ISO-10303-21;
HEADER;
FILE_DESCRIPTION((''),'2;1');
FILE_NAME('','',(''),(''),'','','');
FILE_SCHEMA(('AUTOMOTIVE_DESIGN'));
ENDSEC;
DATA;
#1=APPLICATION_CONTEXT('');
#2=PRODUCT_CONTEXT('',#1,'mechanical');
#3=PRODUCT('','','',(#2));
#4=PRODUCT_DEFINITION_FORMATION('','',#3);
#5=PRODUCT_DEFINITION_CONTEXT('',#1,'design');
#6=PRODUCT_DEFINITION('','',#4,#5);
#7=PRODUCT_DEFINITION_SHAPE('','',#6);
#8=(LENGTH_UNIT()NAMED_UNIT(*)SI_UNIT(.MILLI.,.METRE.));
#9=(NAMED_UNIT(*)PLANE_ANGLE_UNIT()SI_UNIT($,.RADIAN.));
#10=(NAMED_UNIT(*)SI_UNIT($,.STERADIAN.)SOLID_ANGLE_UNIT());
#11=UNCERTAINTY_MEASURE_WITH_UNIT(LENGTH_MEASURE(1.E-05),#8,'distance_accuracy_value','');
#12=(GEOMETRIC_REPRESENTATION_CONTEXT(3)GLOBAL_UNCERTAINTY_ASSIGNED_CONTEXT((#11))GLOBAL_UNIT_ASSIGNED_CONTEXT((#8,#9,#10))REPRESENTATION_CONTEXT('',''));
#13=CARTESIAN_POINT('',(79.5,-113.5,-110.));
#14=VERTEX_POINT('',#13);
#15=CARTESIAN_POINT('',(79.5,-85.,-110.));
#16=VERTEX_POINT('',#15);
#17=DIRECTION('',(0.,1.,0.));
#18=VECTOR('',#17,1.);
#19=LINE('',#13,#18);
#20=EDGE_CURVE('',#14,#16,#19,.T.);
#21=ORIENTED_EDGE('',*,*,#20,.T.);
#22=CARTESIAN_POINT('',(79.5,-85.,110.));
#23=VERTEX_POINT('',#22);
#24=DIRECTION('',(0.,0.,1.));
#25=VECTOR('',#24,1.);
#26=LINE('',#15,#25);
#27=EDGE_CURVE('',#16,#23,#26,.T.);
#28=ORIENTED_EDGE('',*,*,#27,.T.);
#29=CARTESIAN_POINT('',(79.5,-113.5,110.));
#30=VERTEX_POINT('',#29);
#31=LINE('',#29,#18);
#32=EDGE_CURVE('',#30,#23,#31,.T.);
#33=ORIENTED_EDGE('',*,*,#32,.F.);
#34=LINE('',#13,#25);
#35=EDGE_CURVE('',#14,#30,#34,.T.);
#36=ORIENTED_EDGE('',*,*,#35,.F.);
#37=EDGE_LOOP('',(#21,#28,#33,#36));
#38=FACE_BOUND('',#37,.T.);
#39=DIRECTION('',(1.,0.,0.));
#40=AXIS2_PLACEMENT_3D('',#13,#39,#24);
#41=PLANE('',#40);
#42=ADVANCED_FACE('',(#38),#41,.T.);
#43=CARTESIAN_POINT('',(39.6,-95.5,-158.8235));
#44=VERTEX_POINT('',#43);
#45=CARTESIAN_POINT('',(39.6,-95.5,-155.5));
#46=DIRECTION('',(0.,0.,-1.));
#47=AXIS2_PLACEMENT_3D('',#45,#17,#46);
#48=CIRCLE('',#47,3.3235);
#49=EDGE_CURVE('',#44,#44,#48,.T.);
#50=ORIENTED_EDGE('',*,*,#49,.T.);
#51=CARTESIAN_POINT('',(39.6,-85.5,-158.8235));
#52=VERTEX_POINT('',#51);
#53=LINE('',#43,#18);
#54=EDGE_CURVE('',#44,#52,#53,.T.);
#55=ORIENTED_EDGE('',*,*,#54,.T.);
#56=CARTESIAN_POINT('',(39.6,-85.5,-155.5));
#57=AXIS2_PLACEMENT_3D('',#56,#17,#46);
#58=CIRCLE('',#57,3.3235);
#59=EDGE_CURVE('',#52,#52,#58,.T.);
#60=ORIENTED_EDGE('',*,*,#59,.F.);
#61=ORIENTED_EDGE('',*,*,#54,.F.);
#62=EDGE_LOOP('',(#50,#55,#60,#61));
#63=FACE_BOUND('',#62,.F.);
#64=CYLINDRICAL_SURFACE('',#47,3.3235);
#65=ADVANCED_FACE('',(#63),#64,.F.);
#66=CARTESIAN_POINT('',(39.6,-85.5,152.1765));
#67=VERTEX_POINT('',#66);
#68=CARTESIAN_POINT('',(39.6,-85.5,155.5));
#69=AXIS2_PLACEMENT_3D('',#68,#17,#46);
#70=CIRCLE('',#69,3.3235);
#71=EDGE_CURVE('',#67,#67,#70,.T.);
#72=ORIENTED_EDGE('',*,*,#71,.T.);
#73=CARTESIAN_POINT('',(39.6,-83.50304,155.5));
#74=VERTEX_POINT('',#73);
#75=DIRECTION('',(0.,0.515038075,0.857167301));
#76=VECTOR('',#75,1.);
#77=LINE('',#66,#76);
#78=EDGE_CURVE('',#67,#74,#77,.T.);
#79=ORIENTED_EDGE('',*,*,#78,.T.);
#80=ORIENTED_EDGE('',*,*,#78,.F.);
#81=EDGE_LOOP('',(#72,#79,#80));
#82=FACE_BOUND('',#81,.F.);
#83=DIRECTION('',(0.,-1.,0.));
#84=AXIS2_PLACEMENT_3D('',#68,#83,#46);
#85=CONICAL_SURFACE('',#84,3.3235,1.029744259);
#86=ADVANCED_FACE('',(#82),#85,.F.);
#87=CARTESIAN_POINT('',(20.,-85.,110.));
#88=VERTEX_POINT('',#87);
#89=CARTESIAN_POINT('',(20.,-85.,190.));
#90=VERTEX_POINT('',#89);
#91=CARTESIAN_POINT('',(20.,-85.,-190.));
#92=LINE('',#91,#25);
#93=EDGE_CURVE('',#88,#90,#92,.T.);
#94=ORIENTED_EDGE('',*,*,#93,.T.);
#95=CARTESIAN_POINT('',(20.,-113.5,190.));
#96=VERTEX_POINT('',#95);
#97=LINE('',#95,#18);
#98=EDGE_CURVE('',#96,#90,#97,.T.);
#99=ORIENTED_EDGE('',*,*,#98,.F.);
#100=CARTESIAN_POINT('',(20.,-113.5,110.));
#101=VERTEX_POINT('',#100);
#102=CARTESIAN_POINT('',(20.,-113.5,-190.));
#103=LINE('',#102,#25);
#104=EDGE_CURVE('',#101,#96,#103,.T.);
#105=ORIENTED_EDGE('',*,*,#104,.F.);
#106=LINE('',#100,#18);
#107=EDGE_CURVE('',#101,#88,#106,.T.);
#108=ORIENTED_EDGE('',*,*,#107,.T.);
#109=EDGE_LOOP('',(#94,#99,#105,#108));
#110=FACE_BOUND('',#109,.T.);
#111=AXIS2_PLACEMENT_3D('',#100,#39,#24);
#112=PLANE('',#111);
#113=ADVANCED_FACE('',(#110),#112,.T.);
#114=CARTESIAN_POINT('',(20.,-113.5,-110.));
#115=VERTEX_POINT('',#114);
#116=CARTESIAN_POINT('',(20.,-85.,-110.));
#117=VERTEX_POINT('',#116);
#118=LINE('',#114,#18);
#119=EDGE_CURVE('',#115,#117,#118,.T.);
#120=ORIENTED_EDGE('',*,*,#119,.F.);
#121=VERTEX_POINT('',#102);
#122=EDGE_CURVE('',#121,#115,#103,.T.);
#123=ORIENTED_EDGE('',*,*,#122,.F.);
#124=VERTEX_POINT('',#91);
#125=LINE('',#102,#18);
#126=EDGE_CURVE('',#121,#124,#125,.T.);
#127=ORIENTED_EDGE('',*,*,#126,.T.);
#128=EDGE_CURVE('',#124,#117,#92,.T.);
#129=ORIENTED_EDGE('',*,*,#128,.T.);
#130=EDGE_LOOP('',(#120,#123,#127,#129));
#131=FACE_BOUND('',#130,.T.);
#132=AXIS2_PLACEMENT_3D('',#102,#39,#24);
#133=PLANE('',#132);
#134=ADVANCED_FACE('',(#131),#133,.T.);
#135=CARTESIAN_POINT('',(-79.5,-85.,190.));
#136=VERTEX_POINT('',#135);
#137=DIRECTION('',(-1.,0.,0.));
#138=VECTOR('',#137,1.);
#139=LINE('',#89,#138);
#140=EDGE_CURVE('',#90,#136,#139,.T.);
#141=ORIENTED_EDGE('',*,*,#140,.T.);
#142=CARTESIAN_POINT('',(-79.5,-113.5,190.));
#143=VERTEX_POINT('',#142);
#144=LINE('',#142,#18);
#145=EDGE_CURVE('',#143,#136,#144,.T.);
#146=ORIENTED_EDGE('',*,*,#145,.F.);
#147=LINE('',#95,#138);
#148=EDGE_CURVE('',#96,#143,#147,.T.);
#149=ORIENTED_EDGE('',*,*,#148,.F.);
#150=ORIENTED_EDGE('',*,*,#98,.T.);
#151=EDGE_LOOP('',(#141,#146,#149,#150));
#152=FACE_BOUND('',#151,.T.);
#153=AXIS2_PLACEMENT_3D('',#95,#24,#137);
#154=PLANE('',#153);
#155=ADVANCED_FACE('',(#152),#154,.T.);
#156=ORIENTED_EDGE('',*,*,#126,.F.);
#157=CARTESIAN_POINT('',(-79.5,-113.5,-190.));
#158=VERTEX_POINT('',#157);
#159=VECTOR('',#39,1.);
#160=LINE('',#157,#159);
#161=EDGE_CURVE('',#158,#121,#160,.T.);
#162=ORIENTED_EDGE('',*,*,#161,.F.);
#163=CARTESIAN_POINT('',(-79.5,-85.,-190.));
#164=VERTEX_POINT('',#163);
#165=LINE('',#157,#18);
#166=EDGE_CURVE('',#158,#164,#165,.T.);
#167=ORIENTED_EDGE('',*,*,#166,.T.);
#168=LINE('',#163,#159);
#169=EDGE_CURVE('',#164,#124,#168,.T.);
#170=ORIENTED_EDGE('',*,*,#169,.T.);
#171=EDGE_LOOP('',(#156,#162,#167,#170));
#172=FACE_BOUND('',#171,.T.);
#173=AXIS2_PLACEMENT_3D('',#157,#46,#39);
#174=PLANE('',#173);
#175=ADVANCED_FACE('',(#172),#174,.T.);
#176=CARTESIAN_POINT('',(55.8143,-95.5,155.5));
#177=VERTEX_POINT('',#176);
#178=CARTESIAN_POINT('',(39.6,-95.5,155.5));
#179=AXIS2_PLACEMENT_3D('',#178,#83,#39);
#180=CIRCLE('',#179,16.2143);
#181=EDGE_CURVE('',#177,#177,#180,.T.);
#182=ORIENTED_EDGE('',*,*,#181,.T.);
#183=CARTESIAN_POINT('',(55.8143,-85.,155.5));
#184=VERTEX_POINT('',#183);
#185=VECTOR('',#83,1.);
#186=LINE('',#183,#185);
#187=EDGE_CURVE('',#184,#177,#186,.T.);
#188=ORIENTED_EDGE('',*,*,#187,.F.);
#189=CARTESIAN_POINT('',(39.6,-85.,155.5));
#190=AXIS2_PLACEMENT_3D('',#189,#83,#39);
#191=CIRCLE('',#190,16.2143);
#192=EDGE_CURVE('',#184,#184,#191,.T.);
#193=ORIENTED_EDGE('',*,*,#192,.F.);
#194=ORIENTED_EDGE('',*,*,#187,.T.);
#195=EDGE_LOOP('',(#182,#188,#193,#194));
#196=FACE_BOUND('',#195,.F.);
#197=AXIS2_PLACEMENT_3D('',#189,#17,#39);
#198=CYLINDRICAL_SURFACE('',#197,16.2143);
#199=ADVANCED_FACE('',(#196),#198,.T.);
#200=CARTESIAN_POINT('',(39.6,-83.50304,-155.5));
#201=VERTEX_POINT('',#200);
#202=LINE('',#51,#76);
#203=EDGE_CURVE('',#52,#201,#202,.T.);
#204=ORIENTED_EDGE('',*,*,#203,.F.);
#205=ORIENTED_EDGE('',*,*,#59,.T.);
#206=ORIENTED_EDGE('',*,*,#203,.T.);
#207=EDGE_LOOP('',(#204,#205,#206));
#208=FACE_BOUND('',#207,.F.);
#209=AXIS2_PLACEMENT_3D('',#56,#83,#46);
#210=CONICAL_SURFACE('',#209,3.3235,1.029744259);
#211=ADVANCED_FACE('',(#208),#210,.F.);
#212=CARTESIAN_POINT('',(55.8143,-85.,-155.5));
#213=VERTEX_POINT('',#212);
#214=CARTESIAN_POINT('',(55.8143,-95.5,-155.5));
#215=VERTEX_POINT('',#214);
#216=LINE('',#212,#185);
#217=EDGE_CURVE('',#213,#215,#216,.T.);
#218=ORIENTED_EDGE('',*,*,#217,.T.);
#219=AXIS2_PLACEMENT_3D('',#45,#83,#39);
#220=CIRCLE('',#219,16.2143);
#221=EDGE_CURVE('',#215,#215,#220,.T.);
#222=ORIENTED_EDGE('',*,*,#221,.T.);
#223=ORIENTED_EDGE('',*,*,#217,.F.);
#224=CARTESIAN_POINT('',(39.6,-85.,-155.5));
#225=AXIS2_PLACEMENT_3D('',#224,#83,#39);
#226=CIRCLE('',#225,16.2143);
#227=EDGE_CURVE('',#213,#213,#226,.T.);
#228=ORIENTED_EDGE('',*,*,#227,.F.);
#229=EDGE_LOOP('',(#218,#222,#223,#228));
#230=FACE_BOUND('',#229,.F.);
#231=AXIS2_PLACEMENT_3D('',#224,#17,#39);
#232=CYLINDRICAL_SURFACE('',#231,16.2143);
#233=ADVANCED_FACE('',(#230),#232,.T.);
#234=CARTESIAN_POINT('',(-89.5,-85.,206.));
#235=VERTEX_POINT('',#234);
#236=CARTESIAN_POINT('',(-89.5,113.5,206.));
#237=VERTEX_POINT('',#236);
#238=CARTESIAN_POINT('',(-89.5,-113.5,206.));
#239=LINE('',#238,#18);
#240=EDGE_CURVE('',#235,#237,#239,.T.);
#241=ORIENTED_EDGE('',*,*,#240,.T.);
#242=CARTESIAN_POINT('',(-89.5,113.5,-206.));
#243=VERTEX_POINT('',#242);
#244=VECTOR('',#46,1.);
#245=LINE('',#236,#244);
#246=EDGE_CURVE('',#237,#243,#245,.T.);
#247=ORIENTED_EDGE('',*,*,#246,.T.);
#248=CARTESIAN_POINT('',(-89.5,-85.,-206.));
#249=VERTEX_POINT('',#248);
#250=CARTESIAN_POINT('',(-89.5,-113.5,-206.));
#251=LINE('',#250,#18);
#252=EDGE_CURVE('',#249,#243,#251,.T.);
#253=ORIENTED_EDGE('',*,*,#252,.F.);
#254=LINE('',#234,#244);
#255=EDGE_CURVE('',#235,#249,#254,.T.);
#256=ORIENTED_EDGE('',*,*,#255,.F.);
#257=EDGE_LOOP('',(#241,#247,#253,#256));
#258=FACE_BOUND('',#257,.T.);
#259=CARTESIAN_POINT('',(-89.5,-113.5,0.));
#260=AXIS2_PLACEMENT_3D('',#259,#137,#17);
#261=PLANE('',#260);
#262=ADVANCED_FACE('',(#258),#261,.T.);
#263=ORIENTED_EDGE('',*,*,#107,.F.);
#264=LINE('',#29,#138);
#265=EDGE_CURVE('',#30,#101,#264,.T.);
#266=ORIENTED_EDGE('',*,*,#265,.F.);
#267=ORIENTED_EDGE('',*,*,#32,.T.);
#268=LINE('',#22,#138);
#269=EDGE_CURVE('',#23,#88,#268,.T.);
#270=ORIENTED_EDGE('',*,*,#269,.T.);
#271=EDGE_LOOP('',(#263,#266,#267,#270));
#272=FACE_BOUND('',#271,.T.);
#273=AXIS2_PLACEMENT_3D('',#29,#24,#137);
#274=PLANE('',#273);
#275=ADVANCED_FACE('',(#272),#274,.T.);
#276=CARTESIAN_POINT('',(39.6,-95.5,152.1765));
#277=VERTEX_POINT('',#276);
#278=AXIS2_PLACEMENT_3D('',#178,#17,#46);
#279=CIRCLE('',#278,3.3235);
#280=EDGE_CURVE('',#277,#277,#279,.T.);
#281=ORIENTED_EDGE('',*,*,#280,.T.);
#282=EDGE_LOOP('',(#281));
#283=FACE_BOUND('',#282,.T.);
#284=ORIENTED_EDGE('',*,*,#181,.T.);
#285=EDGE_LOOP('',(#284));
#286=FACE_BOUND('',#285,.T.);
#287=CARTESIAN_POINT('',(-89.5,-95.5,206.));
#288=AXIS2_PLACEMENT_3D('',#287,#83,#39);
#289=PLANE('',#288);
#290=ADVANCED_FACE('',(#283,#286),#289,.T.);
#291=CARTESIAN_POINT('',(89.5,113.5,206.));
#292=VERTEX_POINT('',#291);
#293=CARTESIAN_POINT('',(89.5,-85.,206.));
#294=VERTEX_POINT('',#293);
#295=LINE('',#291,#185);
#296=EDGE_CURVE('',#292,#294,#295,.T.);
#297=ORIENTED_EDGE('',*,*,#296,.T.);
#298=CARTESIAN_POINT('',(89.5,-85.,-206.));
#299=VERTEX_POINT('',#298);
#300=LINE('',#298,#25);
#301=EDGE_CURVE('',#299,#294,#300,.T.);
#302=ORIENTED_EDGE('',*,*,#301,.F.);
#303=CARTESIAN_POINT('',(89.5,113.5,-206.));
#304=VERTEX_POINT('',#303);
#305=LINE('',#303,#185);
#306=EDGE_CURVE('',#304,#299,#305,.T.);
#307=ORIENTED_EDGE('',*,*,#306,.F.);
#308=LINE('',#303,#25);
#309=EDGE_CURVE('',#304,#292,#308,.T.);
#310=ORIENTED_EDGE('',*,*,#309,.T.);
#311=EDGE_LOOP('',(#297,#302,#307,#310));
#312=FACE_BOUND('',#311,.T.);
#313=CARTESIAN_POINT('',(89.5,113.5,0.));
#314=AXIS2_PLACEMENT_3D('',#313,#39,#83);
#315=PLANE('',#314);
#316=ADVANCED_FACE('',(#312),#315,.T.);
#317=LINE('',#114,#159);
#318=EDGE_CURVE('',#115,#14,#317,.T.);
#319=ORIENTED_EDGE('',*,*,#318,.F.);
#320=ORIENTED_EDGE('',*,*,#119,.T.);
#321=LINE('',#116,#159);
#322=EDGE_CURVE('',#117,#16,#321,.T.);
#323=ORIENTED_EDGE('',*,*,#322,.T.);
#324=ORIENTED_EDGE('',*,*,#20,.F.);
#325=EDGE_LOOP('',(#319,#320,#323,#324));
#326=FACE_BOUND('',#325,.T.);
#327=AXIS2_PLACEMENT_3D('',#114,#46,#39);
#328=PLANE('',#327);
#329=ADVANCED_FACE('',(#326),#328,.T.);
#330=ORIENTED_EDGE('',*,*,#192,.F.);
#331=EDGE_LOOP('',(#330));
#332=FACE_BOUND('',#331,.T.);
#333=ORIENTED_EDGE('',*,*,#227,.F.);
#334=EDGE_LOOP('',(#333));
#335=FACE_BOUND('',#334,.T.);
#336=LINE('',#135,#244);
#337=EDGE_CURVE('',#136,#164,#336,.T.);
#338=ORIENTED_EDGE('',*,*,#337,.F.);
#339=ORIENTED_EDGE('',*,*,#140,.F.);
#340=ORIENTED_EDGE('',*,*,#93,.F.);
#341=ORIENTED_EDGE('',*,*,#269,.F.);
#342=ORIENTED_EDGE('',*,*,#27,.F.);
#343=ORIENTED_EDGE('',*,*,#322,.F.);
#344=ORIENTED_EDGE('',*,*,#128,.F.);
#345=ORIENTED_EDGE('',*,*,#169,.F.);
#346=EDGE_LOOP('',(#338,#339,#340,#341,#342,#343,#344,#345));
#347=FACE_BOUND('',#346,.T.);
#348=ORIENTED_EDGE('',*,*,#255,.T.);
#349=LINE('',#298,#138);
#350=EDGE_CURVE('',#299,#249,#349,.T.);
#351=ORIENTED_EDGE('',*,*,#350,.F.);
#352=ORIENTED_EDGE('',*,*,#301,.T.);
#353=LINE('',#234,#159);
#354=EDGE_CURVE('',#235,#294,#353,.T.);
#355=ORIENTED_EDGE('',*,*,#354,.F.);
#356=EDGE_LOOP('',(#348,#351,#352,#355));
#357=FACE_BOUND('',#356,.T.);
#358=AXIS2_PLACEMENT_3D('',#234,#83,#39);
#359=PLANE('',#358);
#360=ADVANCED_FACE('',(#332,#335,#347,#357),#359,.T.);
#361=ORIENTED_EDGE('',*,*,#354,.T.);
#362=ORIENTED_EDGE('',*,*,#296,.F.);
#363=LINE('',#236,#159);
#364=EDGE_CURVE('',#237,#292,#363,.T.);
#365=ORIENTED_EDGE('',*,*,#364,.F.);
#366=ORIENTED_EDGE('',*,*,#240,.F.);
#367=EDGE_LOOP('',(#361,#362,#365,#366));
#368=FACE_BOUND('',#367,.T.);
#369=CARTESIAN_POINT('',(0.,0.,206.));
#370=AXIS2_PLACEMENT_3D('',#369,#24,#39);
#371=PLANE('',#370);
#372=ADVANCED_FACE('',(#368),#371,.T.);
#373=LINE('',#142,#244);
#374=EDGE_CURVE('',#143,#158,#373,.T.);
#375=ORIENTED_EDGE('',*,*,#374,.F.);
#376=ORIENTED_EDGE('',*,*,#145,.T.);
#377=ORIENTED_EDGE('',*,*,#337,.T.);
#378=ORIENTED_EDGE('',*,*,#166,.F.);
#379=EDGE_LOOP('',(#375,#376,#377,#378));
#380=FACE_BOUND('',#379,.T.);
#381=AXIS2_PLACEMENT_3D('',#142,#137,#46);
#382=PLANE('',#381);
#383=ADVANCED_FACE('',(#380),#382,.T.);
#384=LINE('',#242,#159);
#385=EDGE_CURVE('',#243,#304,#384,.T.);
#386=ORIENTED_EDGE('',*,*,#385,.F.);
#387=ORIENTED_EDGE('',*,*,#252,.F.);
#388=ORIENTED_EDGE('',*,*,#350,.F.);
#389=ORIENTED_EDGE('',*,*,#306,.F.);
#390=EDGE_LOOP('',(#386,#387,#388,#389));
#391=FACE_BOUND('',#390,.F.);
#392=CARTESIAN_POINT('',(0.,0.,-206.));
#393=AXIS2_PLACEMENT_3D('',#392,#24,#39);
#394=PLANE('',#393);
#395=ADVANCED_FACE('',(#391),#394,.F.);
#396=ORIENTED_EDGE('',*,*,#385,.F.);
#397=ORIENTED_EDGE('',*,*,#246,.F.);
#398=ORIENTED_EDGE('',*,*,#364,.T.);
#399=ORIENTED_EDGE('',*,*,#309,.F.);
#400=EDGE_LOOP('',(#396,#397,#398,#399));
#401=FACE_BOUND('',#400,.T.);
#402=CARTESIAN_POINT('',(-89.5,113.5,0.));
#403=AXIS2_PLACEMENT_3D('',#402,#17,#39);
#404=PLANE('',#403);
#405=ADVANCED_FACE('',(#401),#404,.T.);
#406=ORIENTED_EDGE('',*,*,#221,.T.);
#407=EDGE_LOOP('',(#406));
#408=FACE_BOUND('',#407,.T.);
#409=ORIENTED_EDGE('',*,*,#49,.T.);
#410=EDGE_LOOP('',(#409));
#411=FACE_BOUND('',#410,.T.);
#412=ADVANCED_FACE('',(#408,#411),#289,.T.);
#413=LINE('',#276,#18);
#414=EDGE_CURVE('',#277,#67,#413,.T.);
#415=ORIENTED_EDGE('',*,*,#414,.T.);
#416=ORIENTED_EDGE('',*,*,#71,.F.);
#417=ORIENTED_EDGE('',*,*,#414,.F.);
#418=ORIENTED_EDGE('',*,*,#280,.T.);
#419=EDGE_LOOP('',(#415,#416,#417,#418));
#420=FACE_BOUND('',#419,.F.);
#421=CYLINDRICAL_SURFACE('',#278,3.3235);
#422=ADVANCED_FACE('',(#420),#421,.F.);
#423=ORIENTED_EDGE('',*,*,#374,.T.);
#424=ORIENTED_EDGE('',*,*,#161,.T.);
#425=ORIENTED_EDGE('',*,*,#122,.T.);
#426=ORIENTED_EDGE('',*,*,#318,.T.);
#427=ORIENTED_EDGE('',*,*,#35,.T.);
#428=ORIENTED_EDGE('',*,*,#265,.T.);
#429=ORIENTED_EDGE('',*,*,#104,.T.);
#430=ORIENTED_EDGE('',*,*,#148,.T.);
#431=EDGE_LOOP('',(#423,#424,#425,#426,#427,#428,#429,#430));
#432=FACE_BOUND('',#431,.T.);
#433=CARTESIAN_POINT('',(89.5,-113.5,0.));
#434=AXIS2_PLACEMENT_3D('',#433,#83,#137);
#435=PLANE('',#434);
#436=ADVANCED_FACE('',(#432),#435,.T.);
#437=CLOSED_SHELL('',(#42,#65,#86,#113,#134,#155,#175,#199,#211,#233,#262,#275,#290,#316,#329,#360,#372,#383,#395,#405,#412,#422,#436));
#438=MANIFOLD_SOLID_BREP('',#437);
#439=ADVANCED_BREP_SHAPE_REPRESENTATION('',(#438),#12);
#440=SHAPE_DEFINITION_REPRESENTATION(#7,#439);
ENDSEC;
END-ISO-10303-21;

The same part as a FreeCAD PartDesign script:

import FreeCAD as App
import Part
import Sketcher

V = App.Vector


def add_polygon(sketch, points):
    """Adds a closed chain of lines whose ends are joined by coincident constraints."""
    first, n = sketch.GeometryCount, len(points)
    for a, b in zip(points, points[1:] + points[:1]):
        sketch.addGeometry(Part.LineSegment(App.Vector(*a, 0), App.Vector(*b, 0)), False)
    for i in range(n):
        sketch.addConstraint(Sketcher.Constraint("Coincident", first + i, 2, first + (i + 1) % n, 1))

doc = App.newDocument("Part")
body = doc.addObject("PartDesign::Body", "Body")

sketch1 = doc.addObject("Sketcher::SketchObject", "Sketch")
body.addObject(sketch1)
sketch1.AttachmentSupport = (doc.XY_Plane, [""])
sketch1.MapMode = "FlatFace"
add_polygon(sketch1, [(-89.5, -113.5), (89.5, -113.5), (89.5, 113.5), (-89.5, 113.5)])
sketch1.addConstraint(Sketcher.Constraint("Horizontal", 0))
sketch1.addConstraint(Sketcher.Constraint("Vertical", 1))
sketch1.addConstraint(Sketcher.Constraint("Horizontal", 2))
sketch1.addConstraint(Sketcher.Constraint("Vertical", 3))
sketch1.addConstraint(Sketcher.Constraint("Symmetric", 0, 2, 2, 2, -1, 1))
sketch1.addConstraint(Sketcher.Constraint("DistanceX", 0, 1, 0, 2, 179.0))
sketch1.addConstraint(Sketcher.Constraint("DistanceY", 1, 1, 1, 2, 227.0))
pad1 = doc.addObject("PartDesign::Pad", "Pad")
body.addObject(pad1)
pad1.Profile = sketch1
pad1.Length = 412
pad1.Midplane = True

sketch2 = doc.addObject("Sketcher::SketchObject", "Sketch001")
body.addObject(sketch2)
sketch2.AttachmentSupport = (doc.XZ_Plane, [""])
sketch2.MapMode = "FlatFace"
sketch2.AttachmentOffset = App.Placement(V(0, 0, 113.5), App.Rotation())
add_polygon(sketch2, [(-89.5, -206), (89.5, -206), (89.5, 206), (-89.5, 206)])
add_polygon(sketch2, [(-79.5, 190), (20, 190), (20, 110), (79.5, 110), (79.5, -110), (20, -110), (20, -190), (-79.5, -190)])
sketch2.addConstraint(Sketcher.Constraint("Horizontal", 0))
sketch2.addConstraint(Sketcher.Constraint("Vertical", 1))
sketch2.addConstraint(Sketcher.Constraint("Horizontal", 2))
sketch2.addConstraint(Sketcher.Constraint("Vertical", 3))
sketch2.addConstraint(Sketcher.Constraint("Horizontal", 4))
sketch2.addConstraint(Sketcher.Constraint("Vertical", 5))
sketch2.addConstraint(Sketcher.Constraint("Horizontal", 6))
sketch2.addConstraint(Sketcher.Constraint("Vertical", 7))
sketch2.addConstraint(Sketcher.Constraint("Horizontal", 8))
sketch2.addConstraint(Sketcher.Constraint("Vertical", 9))
sketch2.addConstraint(Sketcher.Constraint("Horizontal", 10))
sketch2.addConstraint(Sketcher.Constraint("Vertical", 11))
sketch2.addConstraint(Sketcher.Constraint("Symmetric", 0, 2, 2, 2, -1, 1))
sketch2.addConstraint(Sketcher.Constraint("Symmetric", 5, 2, 8, 2, -1))
sketch2.addConstraint(Sketcher.Constraint("Equal", 5, 9))
sketch2.addConstraint(Sketcher.Constraint("DistanceY", 7, 2, 7, 1, 220.0))
sketch2.addConstraint(Sketcher.Constraint("DistanceY", 11, 1, 11, 2, 380.0))
sketch2.addConstraint(Sketcher.Constraint("DistanceX", -1, 1, 4, 2, 20.0))
sketch2.addConstraint(Sketcher.Constraint("DistanceX", 6, 2, 1, 2, 10.0))
sketch2.addConstraint(Sketcher.Constraint("DistanceX", 3, 2, 10, 2, 10.0))
sketch2.addConstraint(Sketcher.Constraint("DistanceX", 0, 1, 0, 2, 179.0))
sketch2.addConstraint(Sketcher.Constraint("DistanceY", 1, 1, 1, 2, 412.0))
pocket1 = doc.addObject("PartDesign::Pocket", "Pocket")
body.addObject(pocket1)
pocket1.Profile = sketch2
pocket1.Length = 28.5

sketch3 = doc.addObject("Sketcher::SketchObject", "Sketch002")
body.addObject(sketch3)
sketch3.AttachmentSupport = (doc.XZ_Plane, [""])
sketch3.MapMode = "FlatFace"
sketch3.AttachmentOffset = App.Placement(V(0, 0, 85), App.Rotation())
sketch3.addGeometry(Part.Circle(V(39.6, -155.5, 0), V(0, 0, 1), 16.2143), False)
sketch3.addGeometry(Part.Circle(V(39.6, 155.5, 0), V(0, 0, 1), 16.2143), False)
sketch3.addConstraint(Sketcher.Constraint("Equal", 0, 1))
sketch3.addConstraint(Sketcher.Constraint("Symmetric", 0, 3, 1, 3, -1))
sketch3.addConstraint(Sketcher.Constraint("DistanceY", 0, 3, 1, 3, 311.0))
sketch3.addConstraint(Sketcher.Constraint("DistanceX", -1, 1, 0, 3, 39.6))
sketch3.addConstraint(Sketcher.Constraint("Diameter", 0, 32.4286))
pad2 = doc.addObject("PartDesign::Pad", "Pad001")
body.addObject(pad2)
pad2.Profile = sketch3
pad2.Length = 10.5

sketch4 = doc.addObject("Sketcher::SketchObject", "Sketch003")
body.addObject(sketch4)
sketch4.AttachmentSupport = (doc.XZ_Plane, [""])
sketch4.MapMode = "FlatFace"
sketch4.AttachmentOffset = App.Placement(V(0, 0, 95.5), App.Rotation())
sketch4.addGeometry(Part.Circle(V(39.6, -155.5, 0), V(0, 0, 1), 3.3235), False)
sketch4.addGeometry(Part.Circle(V(39.6, 155.5, 0), V(0, 0, 1), 3.3235), False)
sketch4.addConstraint(Sketcher.Constraint("Equal", 0, 1))
sketch4.addConstraint(Sketcher.Constraint("Symmetric", 0, 3, 1, 3, -1))
sketch4.addConstraint(Sketcher.Constraint("Diameter", 0, 6.647))
sketch4.addConstraint(Sketcher.Constraint("DistanceY", 0, 3, 1, 3, 311.0))
sketch4.addConstraint(Sketcher.Constraint("DistanceX", -1, 1, 0, 3, 39.6))
doc.recompute()
hole = doc.addObject("PartDesign::Hole", "Hole")
body.addObject(hole)
hole.Profile = sketch4
hole.ThreadType = "None"
hole.Diameter = 6.647
hole.DepthType = "Dimension"
hole.Depth = 10
hole.DrillPoint = "Angled"
hole.DrillPointAngle = 118

doc.recompute()
